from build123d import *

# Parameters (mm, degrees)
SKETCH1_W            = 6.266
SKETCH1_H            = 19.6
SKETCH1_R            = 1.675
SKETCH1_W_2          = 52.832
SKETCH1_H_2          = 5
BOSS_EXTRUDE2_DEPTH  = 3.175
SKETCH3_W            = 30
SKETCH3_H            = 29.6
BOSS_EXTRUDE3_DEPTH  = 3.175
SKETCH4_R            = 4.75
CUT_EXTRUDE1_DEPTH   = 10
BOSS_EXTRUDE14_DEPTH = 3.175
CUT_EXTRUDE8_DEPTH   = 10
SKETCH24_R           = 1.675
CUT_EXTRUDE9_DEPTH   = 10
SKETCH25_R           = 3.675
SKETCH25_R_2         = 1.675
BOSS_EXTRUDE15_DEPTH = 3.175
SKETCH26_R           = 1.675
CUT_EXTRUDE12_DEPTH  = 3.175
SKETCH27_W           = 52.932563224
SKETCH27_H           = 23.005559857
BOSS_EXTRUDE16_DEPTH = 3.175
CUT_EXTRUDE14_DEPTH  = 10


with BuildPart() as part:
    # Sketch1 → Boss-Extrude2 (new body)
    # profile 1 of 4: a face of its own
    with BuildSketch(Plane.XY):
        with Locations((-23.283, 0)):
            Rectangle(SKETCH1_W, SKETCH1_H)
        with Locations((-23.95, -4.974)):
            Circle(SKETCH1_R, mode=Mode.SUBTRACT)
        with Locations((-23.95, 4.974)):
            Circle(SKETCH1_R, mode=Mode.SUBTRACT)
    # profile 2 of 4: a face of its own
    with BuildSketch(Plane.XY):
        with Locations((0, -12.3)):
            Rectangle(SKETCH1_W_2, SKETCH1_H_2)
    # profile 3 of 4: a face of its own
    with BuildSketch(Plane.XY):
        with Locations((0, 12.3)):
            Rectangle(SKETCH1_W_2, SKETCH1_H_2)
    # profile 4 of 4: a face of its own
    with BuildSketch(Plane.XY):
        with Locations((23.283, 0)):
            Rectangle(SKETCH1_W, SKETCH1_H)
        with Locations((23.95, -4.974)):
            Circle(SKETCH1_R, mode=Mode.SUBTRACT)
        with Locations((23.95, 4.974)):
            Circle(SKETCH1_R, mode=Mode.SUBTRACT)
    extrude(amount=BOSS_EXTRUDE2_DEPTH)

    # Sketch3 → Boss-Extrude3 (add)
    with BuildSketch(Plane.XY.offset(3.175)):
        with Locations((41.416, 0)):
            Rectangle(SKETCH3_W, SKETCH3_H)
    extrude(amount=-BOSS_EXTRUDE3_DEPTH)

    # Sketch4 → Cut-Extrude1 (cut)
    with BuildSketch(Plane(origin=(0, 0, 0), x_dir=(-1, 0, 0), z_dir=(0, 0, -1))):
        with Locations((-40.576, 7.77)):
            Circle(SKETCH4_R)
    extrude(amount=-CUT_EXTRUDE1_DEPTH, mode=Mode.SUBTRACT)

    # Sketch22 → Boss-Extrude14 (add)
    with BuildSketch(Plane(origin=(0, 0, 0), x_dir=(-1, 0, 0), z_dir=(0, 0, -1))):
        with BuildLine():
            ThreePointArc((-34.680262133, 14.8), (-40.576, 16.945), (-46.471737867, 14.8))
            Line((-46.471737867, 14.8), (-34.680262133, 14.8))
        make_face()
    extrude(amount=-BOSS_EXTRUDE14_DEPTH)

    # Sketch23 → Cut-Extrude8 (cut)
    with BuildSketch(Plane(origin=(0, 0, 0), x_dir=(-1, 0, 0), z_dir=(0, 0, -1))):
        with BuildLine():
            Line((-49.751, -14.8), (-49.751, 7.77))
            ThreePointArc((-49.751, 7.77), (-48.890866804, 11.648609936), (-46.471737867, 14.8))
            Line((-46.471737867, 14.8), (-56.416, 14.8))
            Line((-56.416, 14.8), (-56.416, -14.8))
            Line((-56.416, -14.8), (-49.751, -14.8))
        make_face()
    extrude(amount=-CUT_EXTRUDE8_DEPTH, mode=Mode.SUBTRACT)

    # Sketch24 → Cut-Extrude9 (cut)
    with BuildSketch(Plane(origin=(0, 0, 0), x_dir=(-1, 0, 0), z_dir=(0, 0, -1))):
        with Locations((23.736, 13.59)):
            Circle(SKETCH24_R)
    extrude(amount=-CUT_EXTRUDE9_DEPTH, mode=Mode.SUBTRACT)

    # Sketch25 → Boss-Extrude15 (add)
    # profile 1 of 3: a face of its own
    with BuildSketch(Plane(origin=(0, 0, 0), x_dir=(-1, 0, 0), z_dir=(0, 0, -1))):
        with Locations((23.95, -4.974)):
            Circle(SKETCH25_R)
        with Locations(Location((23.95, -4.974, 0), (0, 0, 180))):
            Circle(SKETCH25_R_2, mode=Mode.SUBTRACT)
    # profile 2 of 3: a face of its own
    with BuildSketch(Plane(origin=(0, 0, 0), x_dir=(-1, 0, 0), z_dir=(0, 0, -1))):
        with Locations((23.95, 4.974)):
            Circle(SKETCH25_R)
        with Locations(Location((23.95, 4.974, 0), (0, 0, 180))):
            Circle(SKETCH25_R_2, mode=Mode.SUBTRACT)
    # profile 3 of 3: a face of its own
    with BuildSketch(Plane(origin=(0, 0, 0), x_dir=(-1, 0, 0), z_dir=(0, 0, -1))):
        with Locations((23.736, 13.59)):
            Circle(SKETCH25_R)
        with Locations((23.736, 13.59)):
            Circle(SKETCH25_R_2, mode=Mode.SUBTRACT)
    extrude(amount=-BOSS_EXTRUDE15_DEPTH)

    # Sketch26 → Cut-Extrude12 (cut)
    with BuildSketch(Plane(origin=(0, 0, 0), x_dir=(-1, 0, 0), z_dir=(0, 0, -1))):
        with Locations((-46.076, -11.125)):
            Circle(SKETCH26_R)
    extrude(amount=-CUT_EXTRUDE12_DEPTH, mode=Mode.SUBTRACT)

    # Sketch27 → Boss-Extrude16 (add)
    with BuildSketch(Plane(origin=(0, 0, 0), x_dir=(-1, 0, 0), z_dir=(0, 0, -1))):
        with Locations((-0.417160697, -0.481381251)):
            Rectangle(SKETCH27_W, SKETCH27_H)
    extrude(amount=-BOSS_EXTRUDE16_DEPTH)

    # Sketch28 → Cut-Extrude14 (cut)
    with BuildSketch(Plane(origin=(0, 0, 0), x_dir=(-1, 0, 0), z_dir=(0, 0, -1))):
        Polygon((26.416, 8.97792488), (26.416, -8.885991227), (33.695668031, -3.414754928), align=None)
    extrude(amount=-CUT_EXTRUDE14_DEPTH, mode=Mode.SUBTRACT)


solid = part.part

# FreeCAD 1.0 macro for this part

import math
import FreeCAD as App
import Part
import Sketcher
Q = App.Units.Quantity

doc = App.newDocument("Part")
params = doc.addObject("Spreadsheet::Sheet", "Params")
for row, (alias, value) in enumerate([
    ("sketch1_diameter", "3.35 mm"),
    ("sketch1_width", "40.3 mm"),
    ("sketch1_height", "29.6 mm"),
    ("sketch1_height2", "19.6 mm"),
    ("pad1_length", "3.175 mm"),
    ("sketch2_width", "30 mm"),
    ("sketch2_height", "29.6 mm"),
    ("pad2_length", "3.175 mm"),
    ("sketch3_diameter", "9.5 mm"),
    ("pocket1_length", "10 mm"),
    ("pad3_length", "3.175 mm"),
    ("sketch5_height", "29.6 mm"),
    ("sketch5_height2", "22.57 mm"),
    ("pocket2_length", "10 mm"),
    ("sketch6_diameter", "3.35 mm"),
    ("pocket3_length", "10 mm"),
    ("sketch7_diameter", "7.35 mm"),
    ("sketch7_diameter2", "3.35 mm"),
    ("pad4_length", "3.175 mm"),
    ("sketch8_diameter", "3.35 mm"),
    ("pocket4_length", "3.175 mm"),
    ("pad5_length", "3.175 mm"),
    ("pocket5_length", "10 mm"),
], start=1):
    params.set(f"A{row}", alias)
    params.set(f"B{row}", "=" + value)
    params.setAlias(f"B{row}", alias)

body = doc.addObject("PartDesign::Body", "Body")

# Sketch on XY plane
sketch1 = body.newObject("Sketcher::SketchObject", "Sketch")
sketch1.AttachmentSupport = (doc.getObject("XY_Plane"), [""])
sketch1.MapMode = "FlatFace"
sketch1.addGeometry([
    Part.LineSegment(App.Vector(-26.4, -14.8, 0), App.Vector(26.4, -14.8, 0)),  # 0
    Part.LineSegment(App.Vector(26.4, -14.8, 0), App.Vector(26.4, 14.8, 0)),  # 1
    Part.LineSegment(App.Vector(26.4, 14.8, 0), App.Vector(-26.4, 14.8, 0)),  # 2
    Part.LineSegment(App.Vector(-26.4, 14.8, 0), App.Vector(-26.4, -14.8, 0)),  # 3
    Part.LineSegment(App.Vector(-20.1, -9.8, 0), App.Vector(-20.1, 9.8, 0)),  # 4
    Part.LineSegment(App.Vector(-20.1, 9.8, 0), App.Vector(20.1, 9.8, 0)),  # 5
    Part.LineSegment(App.Vector(20.1, 9.8, 0), App.Vector(20.1, -9.8, 0)),  # 6
    Part.LineSegment(App.Vector(20.1, -9.8, 0), App.Vector(-20.1, -9.8, 0)),  # 7
    Part.Circle(App.Vector(-23.9, -5, 0), App.Vector(0, 0, 1), 1.7),  # 8
    Part.Circle(App.Vector(-23.9, 5, 0), App.Vector(0, 0, 1), 1.7),  # 9
    Part.Circle(App.Vector(23.9, 5, 0), App.Vector(0, 0, 1), 1.7),  # 10
    Part.Circle(App.Vector(23.9, -5, 0), App.Vector(0, 0, 1), 1.7),  # 11
], False)
sketch1.addConstraint([
    Sketcher.Constraint("Coincident", 0, 2, 1, 1),
    Sketcher.Constraint("Coincident", 1, 2, 2, 1),
    Sketcher.Constraint("Coincident", 2, 2, 3, 1),
    Sketcher.Constraint("Coincident", 3, 2, 0, 1),
    Sketcher.Constraint("Coincident", 4, 2, 5, 1),
    Sketcher.Constraint("Coincident", 5, 2, 6, 1),
    Sketcher.Constraint("Coincident", 6, 2, 7, 1),
    Sketcher.Constraint("Coincident", 7, 2, 4, 1),
    Sketcher.Constraint("Horizontal", 0),
    Sketcher.Constraint("Vertical", 1),
    Sketcher.Constraint("Horizontal", 2),
    Sketcher.Constraint("Vertical", 3),
    Sketcher.Constraint("Vertical", 4),
    Sketcher.Constraint("Horizontal", 5),
    Sketcher.Constraint("Vertical", 6),
    Sketcher.Constraint("Horizontal", 7),
    Sketcher.Constraint("Equal", 8, 9),
    Sketcher.Constraint("Equal", 9, 10),
    Sketcher.Constraint("Equal", 10, 11),
    Sketcher.Constraint("Symmetric", 8, 3, 10, 3, -1, 1),
    Sketcher.Constraint("Symmetric", 9, 3, 11, 3, -1, 1),
    Sketcher.Constraint("Symmetric", 0, 2, 2, 2, -1, 1),
    Sketcher.Constraint("Symmetric", 4, 2, 6, 2, -1, 1),
    Sketcher.Constraint("Symmetric", 9, 3, 10, 3, -2),
    Sketcher.Constraint("Diameter", 8, Q("3.35 mm")),
    Sketcher.Constraint("DistanceX", 5, 1, 5, 2, Q("40.3 mm")),
    Sketcher.Constraint("DistanceY", 1, 1, 1, 2, Q("29.6 mm")),
    Sketcher.Constraint("DistanceY", 4, 1, 4, 2, Q("19.6 mm")),
    Sketcher.Constraint("DistanceX", 9, 3, 10, 3, Q("47.9 mm")),
    Sketcher.Constraint("DistanceX", 0, 1, 0, 2, Q("52.832 mm")),
    Sketcher.Constraint("DistanceY", 8, 3, -1, 1, Q("4.974 mm")),
])
sketch1.setExpression("Constraints[24]", "Params.sketch1_diameter")
sketch1.setExpression("Constraints[25]", "Params.sketch1_width")
sketch1.setExpression("Constraints[26]", "Params.sketch1_height")
sketch1.setExpression("Constraints[27]", "Params.sketch1_height2")
pad1 = body.newObject("PartDesign::Pad", "Pad")
pad1.Profile = sketch1
pad1.setExpression("Length", "Params.pad1_length")

# Sketch on XY plane
sketch2 = body.newObject("Sketcher::SketchObject", "Sketch001")
sketch2.AttachmentSupport = (doc.getObject("XY_Plane"), [""])
sketch2.MapMode = "FlatFace"
sketch2.AttachmentOffset = App.Placement(App.Vector(0, 0, 3.175), App.Rotation())
sketch2.addGeometry([
    Part.LineSegment(App.Vector(26, 15, 0), App.Vector(26, -15, 0)),
    Part.LineSegment(App.Vector(26, -15, 0), App.Vector(56, -15, 0)),
    Part.LineSegment(App.Vector(56, -15, 0), App.Vector(56, 15, 0)),
    Part.LineSegment(App.Vector(56, 15, 0), App.Vector(26, 15, 0)),
], False)
sketch2.addConstraint([
    Sketcher.Constraint("Coincident", 0, 2, 1, 1),
    Sketcher.Constraint("Coincident", 1, 2, 2, 1),
    Sketcher.Constraint("Coincident", 2, 2, 3, 1),
    Sketcher.Constraint("Coincident", 3, 2, 0, 1),
    Sketcher.Constraint("Vertical", 0),
    Sketcher.Constraint("Horizontal", 1),
    Sketcher.Constraint("Vertical", 2),
    Sketcher.Constraint("Horizontal", 3),
    Sketcher.Constraint("DistanceX", 1, 1, 1, 2, Q("30 mm")),
    Sketcher.Constraint("DistanceY", 0, 2, 0, 1, Q("29.6 mm")),
    Sketcher.Constraint("DistanceY", 0, 2, -1, 1, Q("14.8 mm")),
    Sketcher.Constraint("DistanceX", -1, 1, 0, 2, Q("26.416 mm")),
])
sketch2.setExpression("Constraints[8]", "Params.sketch2_width")
sketch2.setExpression("Constraints[9]", "Params.sketch2_height")
pad2 = body.newObject("PartDesign::Pad", "Pad001")
pad2.Profile = sketch2
pad2.setExpression("Length", "Params.pad2_length")
pad2.Reversed = True

# Sketch on XY plane
sketch3 = body.newObject("Sketcher::SketchObject", "Sketch002")
sketch3.AttachmentSupport = (doc.getObject("XY_Plane"), [""])
sketch3.MapMode = "FlatFace"
sketch3.addGeometry(Part.Circle(App.Vector(40.6, 7.8, 0), App.Vector(0, 0, 1), 4.8), False)
sketch3.addConstraint([
    Sketcher.Constraint("Diameter", 0, Q("9.5 mm")),
    Sketcher.Constraint("DistanceY", -1, 1, 0, 3, Q("7.77 mm")),
    Sketcher.Constraint("DistanceX", -1, 1, 0, 3, Q("40.576 mm")),
])
sketch3.setExpression("Constraints[0]", "Params.sketch3_diameter")
pocket1 = body.newObject("PartDesign::Pocket", "Pocket")
pocket1.Profile = sketch3
pocket1.setExpression("Length", "Params.pocket1_length")
pocket1.Reversed = True

# Sketch on XY plane
sketch4 = body.newObject("Sketcher::SketchObject", "Sketch003")
sketch4.AttachmentSupport = (doc.getObject("XY_Plane"), [""])
sketch4.MapMode = "FlatFace"
sketch4.addGeometry([
    Part.ArcOfCircle(Part.Circle(App.Vector(41, 8, 0), App.Vector(0, 0, 1), 9), math.radians(50), math.radians(130)),
    Part.LineSegment(App.Vector(46, 15, 0), App.Vector(35, 15, 0)),
], False)
sketch4.addConstraint([
    Sketcher.Constraint("Coincident", 0, 1, 1, 1),
    Sketcher.Constraint("Coincident", 1, 2, 0, 2),
    Sketcher.Constraint("Horizontal", 1),
    Sketcher.Constraint("Radius", 0, Q("9.175 mm")),
    Sketcher.Constraint("DistanceY", -1, 1, 0, 1, Q("14.8 mm")),
    Sketcher.Constraint("DistanceY", -1, 1, 0, 3, Q("7.77 mm")),
    Sketcher.Constraint("DistanceX", -1, 1, 0, 3, Q("40.576 mm")),
])
pad3 = body.newObject("PartDesign::Pad", "Pad002")
pad3.Profile = sketch4
pad3.setExpression("Length", "Params.pad3_length")

# Sketch on XY plane
sketch5 = body.newObject("Sketcher::SketchObject", "Sketch004")
sketch5.AttachmentSupport = (doc.getObject("XY_Plane"), [""])
sketch5.MapMode = "FlatFace"
sketch5.addGeometry([
    Part.LineSegment(App.Vector(50, -15, 0), App.Vector(50, 8, 0)),  # 0
    Part.ArcOfCircle(Part.Circle(App.Vector(41, 8, 0), App.Vector(0, 0, 1), 9), math.radians(0), math.radians(50)),  # 1
    Part.LineSegment(App.Vector(46, 15, 0), App.Vector(56, 15, 0)),  # 2
    Part.LineSegment(App.Vector(56, 15, 0), App.Vector(56, -15, 0)),  # 3
    Part.LineSegment(App.Vector(56, -15, 0), App.Vector(50, -15, 0)),  # 4
], False)
sketch5.addConstraint([
    Sketcher.Constraint("Tangent", 0, 2, 1, 1),
    Sketcher.Constraint("Coincident", 1, 2, 2, 1),
    Sketcher.Constraint("Coincident", 2, 2, 3, 1),
    Sketcher.Constraint("Coincident", 3, 2, 4, 1),
    Sketcher.Constraint("Coincident", 4, 2, 0, 1),
    Sketcher.Constraint("Vertical", 0),
    Sketcher.Constraint("Horizontal", 2),
    Sketcher.Constraint("Vertical", 3),
    Sketcher.Constraint("Horizontal", 4),
    Sketcher.Constraint("DistanceY", 3, 2, 3, 1, Q("29.6 mm")),
    Sketcher.Constraint("Radius", 1, Q("9.175 mm")),
    Sketcher.Constraint("DistanceY", 0, 1, 0, 2, Q("22.57 mm")),
    Sketcher.Constraint("DistanceY", -1, 1, 1, 2, Q("14.8 mm")),
    Sketcher.Constraint("DistanceX", 4, 2, 4, 1, Q("6.665 mm")),
    Sketcher.Constraint("DistanceX", -1, 1, 1, 3, Q("40.576 mm")),
])
sketch5.setExpression("Constraints[9]", "Params.sketch5_height")
sketch5.setExpression("Constraints[11]", "Params.sketch5_height2")
pocket2 = body.newObject("PartDesign::Pocket", "Pocket001")
pocket2.Profile = sketch5
pocket2.setExpression("Length", "Params.pocket2_length")
pocket2.Reversed = True

# Sketch on XY plane
sketch6 = body.newObject("Sketcher::SketchObject", "Sketch005")
sketch6.AttachmentSupport = (doc.getObject("XY_Plane"), [""])
sketch6.MapMode = "FlatFace"
sketch6.addGeometry(Part.Circle(App.Vector(-23.7, 13.6, 0), App.Vector(0, 0, 1), 1.7), False)
sketch6.addConstraint([
    Sketcher.Constraint("Diameter", 0, Q("3.35 mm")),
    Sketcher.Constraint("DistanceY", -1, 1, 0, 3, Q("13.59 mm")),
    Sketcher.Constraint("DistanceX", 0, 3, -1, 1, Q("23.736 mm")),
])
sketch6.setExpression("Constraints[0]", "Params.sketch6_diameter")
pocket3 = body.newObject("PartDesign::Pocket", "Pocket002")
pocket3.Profile = sketch6
pocket3.setExpression("Length", "Params.pocket3_length")
pocket3.Reversed = True

# Sketch on XY plane
sketch7 = body.newObject("Sketcher::SketchObject", "Sketch006")
sketch7.AttachmentSupport = (doc.getObject("XY_Plane"), [""])
sketch7.MapMode = "FlatFace"
sketch7.addGeometry([
    Part.Circle(App.Vector(-23.9, -5, 0), App.Vector(0, 0, 1), 3.7),  # 0
    Part.Circle(App.Vector(-23.9, -5, 0), App.Vector(0, 0, 1), 1.7),  # 1
    Part.Circle(App.Vector(-23.9, 5, 0), App.Vector(0, 0, 1), 3.7),  # 2
    Part.Circle(App.Vector(-23.9, 5, 0), App.Vector(0, 0, 1), 1.7),  # 3
    Part.Circle(App.Vector(-23.7, 13.6, 0), App.Vector(0, 0, 1), 3.7),  # 4
    Part.Circle(App.Vector(-23.7, 13.6, 0), App.Vector(0, 0, 1), 1.7),  # 5
], False)
sketch7.addConstraint([
    Sketcher.Constraint("Coincident", 1, 3, 0, 3),
    Sketcher.Constraint("Coincident", 3, 3, 2, 3),
    Sketcher.Constraint("Coincident", 5, 3, 4, 3),
    Sketcher.Constraint("Equal", 0, 2),
    Sketcher.Constraint("Equal", 1, 3),
    Sketcher.Constraint("Equal", 2, 4),
    Sketcher.Constraint("Equal", 3, 5),
    Sketcher.Constraint("Symmetric", 0, 3, 2, 3, -1),
    Sketcher.Constraint("Diameter", 0, Q("7.35 mm")),
    Sketcher.Constraint("Diameter", 1, Q("3.35 mm")),
    Sketcher.Constraint("DistanceX", 0, 3, -1, 1, Q("23.95 mm")),
    Sketcher.Constraint("DistanceY", -1, 1, 4, 3, Q("13.59 mm")),
    Sketcher.Constraint("DistanceY", 0, 3, -1, 1, Q("4.974 mm")),
    Sketcher.Constraint("DistanceX", 4, 3, -1, 1, Q("23.736 mm")),
])
sketch7.setExpression("Constraints[8]", "Params.sketch7_diameter")
sketch7.setExpression("Constraints[9]", "Params.sketch7_diameter2")
pad4 = body.newObject("PartDesign::Pad", "Pad003")
pad4.Profile = sketch7
pad4.setExpression("Length", "Params.pad4_length")

# Sketch on XY plane
sketch8 = body.newObject("Sketcher::SketchObject", "Sketch007")
sketch8.AttachmentSupport = (doc.getObject("XY_Plane"), [""])
sketch8.MapMode = "FlatFace"
sketch8.addGeometry(Part.Circle(App.Vector(46.1, -11.1, 0), App.Vector(0, 0, 1), 1.7), False)
sketch8.addConstraint([
    Sketcher.Constraint("Diameter", 0, Q("3.35 mm")),
    Sketcher.Constraint("DistanceX", -1, 1, 0, 3, Q("46.076 mm")),
    Sketcher.Constraint("DistanceY", 0, 3, -1, 1, Q("11.125 mm")),
])
sketch8.setExpression("Constraints[0]", "Params.sketch8_diameter")
pocket4 = body.newObject("PartDesign::Pocket", "Pocket003")
pocket4.Profile = sketch8
pocket4.setExpression("Length", "Params.pocket4_length")
pocket4.Reversed = True

# Sketch on XY plane
sketch9 = body.newObject("Sketcher::SketchObject", "Sketch008")
sketch9.AttachmentSupport = (doc.getObject("XY_Plane"), [""])
sketch9.MapMode = "FlatFace"
sketch9.addGeometry([
    Part.LineSegment(App.Vector(27, 11, 0), App.Vector(27, -12, 0)),
    Part.LineSegment(App.Vector(27, -12, 0), App.Vector(-26, -12, 0)),
    Part.LineSegment(App.Vector(-26, -12, 0), App.Vector(-26, 11, 0)),
    Part.LineSegment(App.Vector(-26, 11, 0), App.Vector(27, 11, 0)),
], False)
sketch9.addConstraint([
    Sketcher.Constraint("Coincident", 0, 2, 1, 1),
    Sketcher.Constraint("Coincident", 1, 2, 2, 1),
    Sketcher.Constraint("Coincident", 2, 2, 3, 1),
    Sketcher.Constraint("Coincident", 3, 2, 0, 1),
    Sketcher.Constraint("Vertical", 0),
    Sketcher.Constraint("Horizontal", 1),
    Sketcher.Constraint("Vertical", 2),
    Sketcher.Constraint("Horizontal", 3),
    Sketcher.Constraint("DistanceY", 0, 2, 0, 1, Q("23.00556 mm")),
    Sketcher.Constraint("DistanceY", -1, 1, 2, 2, Q("11.021399 mm")),
    Sketcher.Constraint("DistanceX", 1, 2, 1, 1, Q("52.932563 mm")),
    Sketcher.Constraint("DistanceX", 1, 2, -1, 1, Q("26.049121 mm")),
])
pad5 = body.newObject("PartDesign::Pad", "Pad004")
pad5.Profile = sketch9
pad5.setExpression("Length", "Params.pad5_length")

# Sketch on XY plane
sketch10 = body.newObject("Sketcher::SketchObject", "Sketch009")
sketch10.AttachmentSupport = (doc.getObject("XY_Plane"), [""])
sketch10.MapMode = "FlatFace"
sketch10.addGeometry([
    Part.LineSegment(App.Vector(-26, 9, 0), App.Vector(-26, -9, 0)),
    Part.LineSegment(App.Vector(-26, -9, 0), App.Vector(-34, -3, 0)),
    Part.LineSegment(App.Vector(-34, -3, 0), App.Vector(-26, 9, 0)),
], False)
sketch10.addConstraint([
    Sketcher.Constraint("Coincident", 0, 2, 1, 1),
    Sketcher.Constraint("Coincident", 1, 2, 2, 1),
    Sketcher.Constraint("Coincident", 2, 2, 0, 1),
    Sketcher.Constraint("Vertical", 0),
    Sketcher.Constraint("DistanceX", 0, 2, -1, 1, Q("26.416 mm")),
    Sketcher.Constraint("Distance", 1, Q("9.106481 mm")),
    Sketcher.Constraint("DistanceY", 0, 2, 0, 1, Q("17.863916 mm")),
    Sketcher.Constraint("DistanceY", 0, 2, -1, 1, Q("8.885991 mm")),
    Sketcher.Constraint("DistanceX", 1, 2, -1, 1, Q("33.695668 mm")),
])
pocket5 = body.newObject("PartDesign::Pocket", "Pocket004")
pocket5.Profile = sketch10
pocket5.setExpression("Length", "Params.pocket5_length")
pocket5.Reversed = True

doc.recompute()
